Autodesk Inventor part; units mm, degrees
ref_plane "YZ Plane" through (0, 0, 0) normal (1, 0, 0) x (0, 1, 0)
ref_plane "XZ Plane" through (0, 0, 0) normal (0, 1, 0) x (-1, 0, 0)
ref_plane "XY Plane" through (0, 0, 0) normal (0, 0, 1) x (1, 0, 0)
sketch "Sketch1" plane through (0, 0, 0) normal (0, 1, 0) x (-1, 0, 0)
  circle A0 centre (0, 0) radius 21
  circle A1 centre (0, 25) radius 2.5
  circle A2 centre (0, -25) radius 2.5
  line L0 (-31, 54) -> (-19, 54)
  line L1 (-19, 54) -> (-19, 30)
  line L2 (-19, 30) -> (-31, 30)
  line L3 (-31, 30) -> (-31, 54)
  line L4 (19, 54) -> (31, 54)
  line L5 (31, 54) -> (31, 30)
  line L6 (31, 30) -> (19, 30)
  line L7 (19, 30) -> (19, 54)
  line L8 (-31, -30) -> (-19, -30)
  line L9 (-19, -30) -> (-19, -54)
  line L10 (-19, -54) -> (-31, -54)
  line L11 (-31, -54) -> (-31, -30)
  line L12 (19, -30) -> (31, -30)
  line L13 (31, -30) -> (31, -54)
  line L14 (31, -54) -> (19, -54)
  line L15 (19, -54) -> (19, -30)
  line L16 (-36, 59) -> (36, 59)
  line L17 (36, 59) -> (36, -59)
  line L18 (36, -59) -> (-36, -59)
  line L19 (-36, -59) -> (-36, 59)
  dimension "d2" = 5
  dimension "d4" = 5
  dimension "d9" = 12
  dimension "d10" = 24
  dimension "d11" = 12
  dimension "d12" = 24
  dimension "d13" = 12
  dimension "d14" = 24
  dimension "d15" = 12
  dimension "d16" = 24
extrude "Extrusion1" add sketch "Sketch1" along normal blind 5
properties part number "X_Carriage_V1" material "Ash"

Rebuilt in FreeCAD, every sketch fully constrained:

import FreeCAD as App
import Part
import Sketcher

doc = App.newDocument("Part")
body = doc.addObject("PartDesign::Body", "Body")

sketch1 = body.newObject("Sketcher::SketchObject", "Sketch")
sketch1.AttachmentSupport = (doc.getObject("XZ_Plane"), [""])
sketch1.MapMode = "FlatFace"
sketch1.addGeometry([
    Part.LineSegment(App.Vector(-36, 59, 0), App.Vector(36, 59, 0)),
    Part.LineSegment(App.Vector(36, 59, 0), App.Vector(36, -59, 0)),
    Part.LineSegment(App.Vector(36, -59, 0), App.Vector(-36, -59, 0)),
    Part.LineSegment(App.Vector(-36, -59, 0), App.Vector(-36, 59, 0)),
    Part.LineSegment(App.Vector(31, -54, 0), App.Vector(31, -30, 0)),
    Part.LineSegment(App.Vector(31, -30, 0), App.Vector(19, -30, 0)),
    Part.LineSegment(App.Vector(19, -30, 0), App.Vector(19, -54, 0)),
    Part.LineSegment(App.Vector(19, -54, 0), App.Vector(31, -54, 0)),
    Part.LineSegment(App.Vector(-19, -54, 0), App.Vector(-19, -30, 0)),
    Part.LineSegment(App.Vector(-19, -30, 0), App.Vector(-31, -30, 0)),
    Part.LineSegment(App.Vector(-31, -30, 0), App.Vector(-31, -54, 0)),
    Part.LineSegment(App.Vector(-31, -54, 0), App.Vector(-19, -54, 0)),
    Part.Circle(App.Vector(0, -25, 0), App.Vector(0, 0, 1), 2.5),
    Part.LineSegment(App.Vector(31, 30, 0), App.Vector(31, 54, 0)),
    Part.LineSegment(App.Vector(31, 54, 0), App.Vector(19, 54, 0)),
    Part.LineSegment(App.Vector(19, 54, 0), App.Vector(19, 30, 0)),
    Part.LineSegment(App.Vector(19, 30, 0), App.Vector(31, 30, 0)),
    Part.Circle(App.Vector(0, 0, 0), App.Vector(0, 0, 1), 21),
    Part.Circle(App.Vector(0, 25, 0), App.Vector(0, 0, 1), 2.5),
    Part.LineSegment(App.Vector(-19, 30, 0), App.Vector(-19, 54, 0)),
    Part.LineSegment(App.Vector(-19, 54, 0), App.Vector(-31, 54, 0)),
    Part.LineSegment(App.Vector(-31, 54, 0), App.Vector(-31, 30, 0)),
    Part.LineSegment(App.Vector(-31, 30, 0), App.Vector(-19, 30, 0)),
], False)
sketch1.addConstraint([
    Sketcher.Constraint("Coincident", 0, 2, 1, 1),
    Sketcher.Constraint("Coincident", 1, 2, 2, 1),
    Sketcher.Constraint("Coincident", 2, 2, 3, 1),
    Sketcher.Constraint("Coincident", 3, 2, 0, 1),
    Sketcher.Constraint("Coincident", 4, 2, 5, 1),
    Sketcher.Constraint("Coincident", 5, 2, 6, 1),
    Sketcher.Constraint("Coincident", 6, 2, 7, 1),
    Sketcher.Constraint("Coincident", 7, 2, 4, 1),
    Sketcher.Constraint("Coincident", 8, 2, 9, 1),
    Sketcher.Constraint("Coincident", 9, 2, 10, 1),
    Sketcher.Constraint("Coincident", 10, 2, 11, 1),
    Sketcher.Constraint("Coincident", 11, 2, 8, 1),
    Sketcher.Constraint("Coincident", 13, 2, 14, 1),
    Sketcher.Constraint("Coincident", 14, 2, 15, 1),
    Sketcher.Constraint("Coincident", 15, 2, 16, 1),
    Sketcher.Constraint("Coincident", 16, 2, 13, 1),
    Sketcher.Constraint("Coincident", 19, 2, 20, 1),
    Sketcher.Constraint("Coincident", 20, 2, 21, 1),
    Sketcher.Constraint("Coincident", 21, 2, 22, 1),
    Sketcher.Constraint("Coincident", 22, 2, 19, 1),
    Sketcher.Constraint("Horizontal", 0),
    Sketcher.Constraint("Vertical", 1),
    Sketcher.Constraint("Horizontal", 2),
    Sketcher.Constraint("Vertical", 3),
    Sketcher.Constraint("Vertical", 4),
    Sketcher.Constraint("Horizontal", 5),
    Sketcher.Constraint("Vertical", 6),
    Sketcher.Constraint("Horizontal", 7),
    Sketcher.Constraint("Vertical", 8),
    Sketcher.Constraint("Horizontal", 9),
    Sketcher.Constraint("Vertical", 10),
    Sketcher.Constraint("Horizontal", 11),
    Sketcher.Constraint("Vertical", 13),
    Sketcher.Constraint("Horizontal", 14),
    Sketcher.Constraint("Vertical", 15),
    Sketcher.Constraint("Horizontal", 16),
    Sketcher.Constraint("Vertical", 19),
    Sketcher.Constraint("Horizontal", 20),
    Sketcher.Constraint("Vertical", 21),
    Sketcher.Constraint("Horizontal", 22),
    Sketcher.Constraint("Coincident", 17, 3, -1, 1),
    Sketcher.Constraint("Equal", 12, 18),
    Sketcher.Constraint("Symmetric", 12, 3, 18, 3, -1, 1),
    Sketcher.Constraint("Symmetric", 0, 2, 2, 2, -1, 1),
    Sketcher.Constraint("Symmetric", 10, 2, 13, 2, -1, 1),
    Sketcher.Constraint("Symmetric", 8, 2, 15, 2, -1, 1),
    Sketcher.Constraint("Symmetric", 6, 2, 19, 2, -1, 1),
    Sketcher.Constraint("Symmetric", 4, 2, 21, 2, -1, 1),
    Sketcher.Constraint("Symmetric", 5, 2, 8, 2, -2),
    Sketcher.Constraint("Symmetric", 7, 2, 10, 2, -2),
    Sketcher.Constraint("PointOnObject", 12, 3, -2),
    Sketcher.Constraint("Diameter", 12, 5.0),
    Sketcher.Constraint("DistanceX", 5, 2, 5, 1, 12.0),
    Sketcher.Constraint("DistanceY", 4, 1, 4, 2, 24.0),
    Sketcher.Constraint("Diameter", 17, 42.0),
    Sketcher.Constraint("DistanceX", 4, 2, 1, 2, 5.0),
    Sketcher.Constraint("DistanceY", 4, 2, 12, 3, 5.0),
    Sketcher.Constraint("DistanceY", 1, 2, 6, 2, 5.0),
    Sketcher.Constraint("DistanceX", 0, 1, 0, 2, 72.0),
    Sketcher.Constraint("DistanceY", 1, 2, 1, 1, 118.0),
])
pad1 = body.newObject("PartDesign::Pad", "Pad")
pad1.Profile = sketch1
pad1.Length = 5
pad1.Reversed = True

doc.recompute()
